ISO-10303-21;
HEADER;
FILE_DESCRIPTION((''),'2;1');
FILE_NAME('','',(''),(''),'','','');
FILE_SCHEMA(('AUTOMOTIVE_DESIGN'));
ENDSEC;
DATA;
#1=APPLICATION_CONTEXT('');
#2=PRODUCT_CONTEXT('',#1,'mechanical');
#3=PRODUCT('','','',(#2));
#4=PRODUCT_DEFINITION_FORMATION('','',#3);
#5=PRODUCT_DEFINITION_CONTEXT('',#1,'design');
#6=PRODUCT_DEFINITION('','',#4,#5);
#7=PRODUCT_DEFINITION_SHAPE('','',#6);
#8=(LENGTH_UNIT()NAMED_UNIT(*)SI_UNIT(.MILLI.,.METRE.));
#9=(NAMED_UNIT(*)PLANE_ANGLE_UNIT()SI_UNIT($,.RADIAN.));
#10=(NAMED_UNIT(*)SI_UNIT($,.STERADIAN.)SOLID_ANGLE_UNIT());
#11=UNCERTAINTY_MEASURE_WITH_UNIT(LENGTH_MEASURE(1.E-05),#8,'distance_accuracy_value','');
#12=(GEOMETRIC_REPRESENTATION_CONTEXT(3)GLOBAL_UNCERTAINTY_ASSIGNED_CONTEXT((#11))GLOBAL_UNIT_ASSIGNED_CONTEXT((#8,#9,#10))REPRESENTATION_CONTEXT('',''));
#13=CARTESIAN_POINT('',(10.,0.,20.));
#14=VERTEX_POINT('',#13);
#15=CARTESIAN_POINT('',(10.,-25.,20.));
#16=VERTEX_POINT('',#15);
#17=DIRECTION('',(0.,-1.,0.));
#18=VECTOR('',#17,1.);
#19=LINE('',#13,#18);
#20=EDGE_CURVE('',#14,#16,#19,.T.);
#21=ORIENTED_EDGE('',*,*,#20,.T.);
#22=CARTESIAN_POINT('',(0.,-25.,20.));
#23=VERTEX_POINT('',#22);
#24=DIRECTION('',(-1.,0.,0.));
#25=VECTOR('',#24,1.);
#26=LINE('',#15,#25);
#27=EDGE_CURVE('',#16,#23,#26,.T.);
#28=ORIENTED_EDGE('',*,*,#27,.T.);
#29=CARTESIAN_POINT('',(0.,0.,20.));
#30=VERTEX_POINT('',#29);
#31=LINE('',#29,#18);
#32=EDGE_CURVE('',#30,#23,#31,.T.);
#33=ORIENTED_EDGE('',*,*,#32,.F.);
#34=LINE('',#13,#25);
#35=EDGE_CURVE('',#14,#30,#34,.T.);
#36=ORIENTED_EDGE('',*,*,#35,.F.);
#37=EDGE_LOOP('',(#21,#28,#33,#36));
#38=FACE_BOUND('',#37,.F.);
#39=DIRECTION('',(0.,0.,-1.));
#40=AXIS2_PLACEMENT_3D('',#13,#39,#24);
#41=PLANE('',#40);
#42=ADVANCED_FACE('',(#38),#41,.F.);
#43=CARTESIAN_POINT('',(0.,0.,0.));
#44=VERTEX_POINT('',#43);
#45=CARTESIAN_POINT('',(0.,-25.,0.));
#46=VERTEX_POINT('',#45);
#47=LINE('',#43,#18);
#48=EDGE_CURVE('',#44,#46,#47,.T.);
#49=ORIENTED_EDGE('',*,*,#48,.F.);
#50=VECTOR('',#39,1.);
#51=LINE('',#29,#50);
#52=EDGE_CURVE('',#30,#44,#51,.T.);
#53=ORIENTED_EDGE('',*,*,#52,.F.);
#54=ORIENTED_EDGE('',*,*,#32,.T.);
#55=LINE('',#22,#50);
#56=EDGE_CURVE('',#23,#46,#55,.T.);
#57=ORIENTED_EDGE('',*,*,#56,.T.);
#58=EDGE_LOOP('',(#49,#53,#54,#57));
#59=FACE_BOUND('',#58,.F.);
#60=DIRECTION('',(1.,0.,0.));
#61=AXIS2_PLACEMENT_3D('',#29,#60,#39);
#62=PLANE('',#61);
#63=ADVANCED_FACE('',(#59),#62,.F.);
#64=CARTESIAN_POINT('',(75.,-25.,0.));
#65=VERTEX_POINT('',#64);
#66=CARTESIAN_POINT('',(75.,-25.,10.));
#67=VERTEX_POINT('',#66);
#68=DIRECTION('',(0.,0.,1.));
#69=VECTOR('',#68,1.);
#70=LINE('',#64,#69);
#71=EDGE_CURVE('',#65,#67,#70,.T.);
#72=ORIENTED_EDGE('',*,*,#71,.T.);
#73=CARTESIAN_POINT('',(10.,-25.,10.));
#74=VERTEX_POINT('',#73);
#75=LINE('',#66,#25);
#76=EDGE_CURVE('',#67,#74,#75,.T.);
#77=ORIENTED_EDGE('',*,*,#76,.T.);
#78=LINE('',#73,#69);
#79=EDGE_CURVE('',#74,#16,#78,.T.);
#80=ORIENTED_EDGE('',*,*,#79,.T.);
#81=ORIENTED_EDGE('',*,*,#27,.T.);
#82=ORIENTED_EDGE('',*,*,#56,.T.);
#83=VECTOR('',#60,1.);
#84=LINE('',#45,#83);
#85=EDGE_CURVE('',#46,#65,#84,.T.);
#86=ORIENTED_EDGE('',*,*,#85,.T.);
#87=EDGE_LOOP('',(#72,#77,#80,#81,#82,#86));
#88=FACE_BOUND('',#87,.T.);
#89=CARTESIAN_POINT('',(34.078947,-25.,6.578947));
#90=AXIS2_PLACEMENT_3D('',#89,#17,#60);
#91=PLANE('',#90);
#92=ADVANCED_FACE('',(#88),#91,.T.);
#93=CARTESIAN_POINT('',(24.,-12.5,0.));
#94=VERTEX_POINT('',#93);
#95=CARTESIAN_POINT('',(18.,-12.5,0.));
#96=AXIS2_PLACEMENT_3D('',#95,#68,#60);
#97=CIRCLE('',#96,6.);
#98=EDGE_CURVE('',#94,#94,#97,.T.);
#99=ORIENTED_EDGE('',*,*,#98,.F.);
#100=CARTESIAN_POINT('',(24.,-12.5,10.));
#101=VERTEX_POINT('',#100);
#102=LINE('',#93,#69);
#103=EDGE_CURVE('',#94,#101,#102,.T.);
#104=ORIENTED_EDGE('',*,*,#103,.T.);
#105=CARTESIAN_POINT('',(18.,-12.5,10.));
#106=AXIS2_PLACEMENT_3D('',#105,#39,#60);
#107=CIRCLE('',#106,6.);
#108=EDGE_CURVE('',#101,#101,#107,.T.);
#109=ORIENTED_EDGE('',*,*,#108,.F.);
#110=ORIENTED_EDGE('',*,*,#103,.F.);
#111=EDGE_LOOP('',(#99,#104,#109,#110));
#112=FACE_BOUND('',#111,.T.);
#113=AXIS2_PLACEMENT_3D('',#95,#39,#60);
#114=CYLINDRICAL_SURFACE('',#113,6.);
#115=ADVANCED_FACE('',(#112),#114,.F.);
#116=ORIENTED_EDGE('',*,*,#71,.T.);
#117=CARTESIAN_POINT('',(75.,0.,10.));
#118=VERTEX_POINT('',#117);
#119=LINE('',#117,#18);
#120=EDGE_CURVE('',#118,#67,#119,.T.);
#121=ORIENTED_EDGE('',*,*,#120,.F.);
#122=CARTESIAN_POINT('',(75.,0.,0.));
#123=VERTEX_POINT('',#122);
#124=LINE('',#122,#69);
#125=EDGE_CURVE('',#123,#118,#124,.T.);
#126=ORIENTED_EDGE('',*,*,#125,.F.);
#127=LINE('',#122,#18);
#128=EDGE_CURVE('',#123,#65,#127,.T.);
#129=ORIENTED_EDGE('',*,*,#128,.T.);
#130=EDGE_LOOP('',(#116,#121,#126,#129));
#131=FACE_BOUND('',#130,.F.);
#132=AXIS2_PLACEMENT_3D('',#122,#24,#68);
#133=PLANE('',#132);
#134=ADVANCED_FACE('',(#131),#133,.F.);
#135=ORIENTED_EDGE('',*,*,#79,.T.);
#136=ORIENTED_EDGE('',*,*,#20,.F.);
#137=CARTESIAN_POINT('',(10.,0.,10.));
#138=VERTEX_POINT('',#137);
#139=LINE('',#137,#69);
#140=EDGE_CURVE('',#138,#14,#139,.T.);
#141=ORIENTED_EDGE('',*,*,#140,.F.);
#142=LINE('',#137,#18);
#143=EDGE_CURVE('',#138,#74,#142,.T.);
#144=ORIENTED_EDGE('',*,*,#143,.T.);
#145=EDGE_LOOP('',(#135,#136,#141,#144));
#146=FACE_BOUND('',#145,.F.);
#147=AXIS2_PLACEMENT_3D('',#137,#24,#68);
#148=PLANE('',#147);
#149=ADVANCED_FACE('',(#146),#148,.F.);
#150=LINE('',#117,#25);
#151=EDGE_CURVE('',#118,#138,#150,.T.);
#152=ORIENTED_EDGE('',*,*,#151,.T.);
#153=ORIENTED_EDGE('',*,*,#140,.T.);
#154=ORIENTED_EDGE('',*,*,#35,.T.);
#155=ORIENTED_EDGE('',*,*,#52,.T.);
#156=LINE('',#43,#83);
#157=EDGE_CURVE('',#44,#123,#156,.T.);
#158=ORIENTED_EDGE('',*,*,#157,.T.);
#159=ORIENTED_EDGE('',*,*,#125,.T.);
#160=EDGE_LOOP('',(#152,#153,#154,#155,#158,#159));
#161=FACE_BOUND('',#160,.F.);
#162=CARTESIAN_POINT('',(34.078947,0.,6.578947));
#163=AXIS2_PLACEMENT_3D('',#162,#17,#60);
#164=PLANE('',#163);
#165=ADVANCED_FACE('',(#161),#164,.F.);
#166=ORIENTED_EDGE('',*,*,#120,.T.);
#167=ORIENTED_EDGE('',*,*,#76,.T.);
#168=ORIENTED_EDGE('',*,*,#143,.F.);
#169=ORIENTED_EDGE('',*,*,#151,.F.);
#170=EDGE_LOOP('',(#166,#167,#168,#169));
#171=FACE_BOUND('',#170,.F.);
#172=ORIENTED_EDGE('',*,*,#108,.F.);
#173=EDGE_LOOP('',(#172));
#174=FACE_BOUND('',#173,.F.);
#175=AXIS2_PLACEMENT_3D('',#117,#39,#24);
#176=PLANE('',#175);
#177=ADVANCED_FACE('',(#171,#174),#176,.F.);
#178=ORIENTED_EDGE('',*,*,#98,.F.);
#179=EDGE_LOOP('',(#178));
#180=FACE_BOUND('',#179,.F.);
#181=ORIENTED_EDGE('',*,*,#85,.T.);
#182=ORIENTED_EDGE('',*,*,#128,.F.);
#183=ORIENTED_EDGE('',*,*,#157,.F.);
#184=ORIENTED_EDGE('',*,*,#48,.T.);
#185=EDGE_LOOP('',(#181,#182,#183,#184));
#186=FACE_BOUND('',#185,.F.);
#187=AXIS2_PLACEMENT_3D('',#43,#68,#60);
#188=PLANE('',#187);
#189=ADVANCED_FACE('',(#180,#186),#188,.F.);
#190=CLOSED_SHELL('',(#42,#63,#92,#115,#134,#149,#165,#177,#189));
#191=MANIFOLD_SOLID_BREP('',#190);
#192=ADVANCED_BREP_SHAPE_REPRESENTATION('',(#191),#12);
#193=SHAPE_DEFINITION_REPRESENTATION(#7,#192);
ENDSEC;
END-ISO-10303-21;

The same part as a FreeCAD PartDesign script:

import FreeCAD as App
import Part
import Sketcher
Q = App.Units.Quantity

doc = App.newDocument("Part")
params = doc.addObject("Spreadsheet::Sheet", "Params")
for row, (alias, value) in enumerate([
    ("sketch1_width", "75 mm"),
    ("sketch1_width2", "65 mm"),
    ("pad1_length", "25 mm"),
    ("sketch2_diameter", "12 mm"),
], start=1):
    params.set(f"A{row}", alias)
    params.set(f"B{row}", "=" + value)
    params.setAlias(f"B{row}", alias)

body = doc.addObject("PartDesign::Body", "Body")

sketch1 = body.newObject("Sketcher::SketchObject", "Sketch")
sketch1.AttachmentSupport = (doc.getObject("XZ_Plane"), [""])
sketch1.MapMode = "FlatFace"
sketch1.addGeometry([
    Part.LineSegment(App.Vector(0, 20, 0), App.Vector(0, 0, 0)),
    Part.LineSegment(App.Vector(0, 0, 0), App.Vector(75, 0, 0)),
    Part.LineSegment(App.Vector(75, 0, 0), App.Vector(75, 10, 0)),
    Part.LineSegment(App.Vector(75, 10, 0), App.Vector(10, 10, 0)),
    Part.LineSegment(App.Vector(10, 10, 0), App.Vector(10, 20, 0)),
    Part.LineSegment(App.Vector(10, 20, 0), App.Vector(0, 20, 0)),
], False)
sketch1.addConstraint([
    Sketcher.Constraint("Coincident", 0, 2, 1, 1),
    Sketcher.Constraint("Coincident", 1, 2, 2, 1),
    Sketcher.Constraint("Coincident", 2, 2, 3, 1),
    Sketcher.Constraint("Coincident", 3, 2, 4, 1),
    Sketcher.Constraint("Coincident", 4, 2, 5, 1),
    Sketcher.Constraint("Coincident", 5, 2, 0, 1),
    Sketcher.Constraint("Vertical", 0),
    Sketcher.Constraint("Horizontal", 1),
    Sketcher.Constraint("Vertical", 2),
    Sketcher.Constraint("Horizontal", 3),
    Sketcher.Constraint("Vertical", 4),
    Sketcher.Constraint("Horizontal", 5),
    Sketcher.Constraint("Coincident", 0, 2, -1, 1),
    Sketcher.Constraint("Equal", 5, 2),
    Sketcher.Constraint("Equal", 2, 4),
    Sketcher.Constraint("DistanceX", 1, 1, 1, 2, Q("75 mm")),
    Sketcher.Constraint("DistanceX", 3, 2, 3, 1, Q("65 mm")),
])
sketch1.setExpression("Constraints[15]", "Params.sketch1_width")
sketch1.setExpression("Constraints[16]", "Params.sketch1_width2")
pad1 = body.newObject("PartDesign::Pad", "Pad")
pad1.Profile = sketch1
pad1.setExpression("Length", "Params.pad1_length")

sketch2 = body.newObject("Sketcher::SketchObject", "Sketch001")
sketch2.AttachmentSupport = (doc.getObject("XY_Plane"), [""])
sketch2.MapMode = "FlatFace"
sketch2.addGeometry(Part.Circle(App.Vector(18, -12, 0), App.Vector(0, 0, 1), 6), False)
sketch2.addConstraint([
    Sketcher.Constraint("Diameter", 0, Q("12 mm")),
    Sketcher.Constraint("DistanceX", -1, 1, 0, 3, Q("18 mm")),
    Sketcher.Constraint("DistanceY", 0, 3, -1, 1, Q("12.5 mm")),
])
sketch2.setExpression("Constraints[0]", "Params.sketch2_diameter")
pocket1 = body.newObject("PartDesign::Pocket", "Pocket")
pocket1.Profile = sketch2
pocket1.Type = "ThroughAll"
pocket1.Reversed = True

doc.recompute()
